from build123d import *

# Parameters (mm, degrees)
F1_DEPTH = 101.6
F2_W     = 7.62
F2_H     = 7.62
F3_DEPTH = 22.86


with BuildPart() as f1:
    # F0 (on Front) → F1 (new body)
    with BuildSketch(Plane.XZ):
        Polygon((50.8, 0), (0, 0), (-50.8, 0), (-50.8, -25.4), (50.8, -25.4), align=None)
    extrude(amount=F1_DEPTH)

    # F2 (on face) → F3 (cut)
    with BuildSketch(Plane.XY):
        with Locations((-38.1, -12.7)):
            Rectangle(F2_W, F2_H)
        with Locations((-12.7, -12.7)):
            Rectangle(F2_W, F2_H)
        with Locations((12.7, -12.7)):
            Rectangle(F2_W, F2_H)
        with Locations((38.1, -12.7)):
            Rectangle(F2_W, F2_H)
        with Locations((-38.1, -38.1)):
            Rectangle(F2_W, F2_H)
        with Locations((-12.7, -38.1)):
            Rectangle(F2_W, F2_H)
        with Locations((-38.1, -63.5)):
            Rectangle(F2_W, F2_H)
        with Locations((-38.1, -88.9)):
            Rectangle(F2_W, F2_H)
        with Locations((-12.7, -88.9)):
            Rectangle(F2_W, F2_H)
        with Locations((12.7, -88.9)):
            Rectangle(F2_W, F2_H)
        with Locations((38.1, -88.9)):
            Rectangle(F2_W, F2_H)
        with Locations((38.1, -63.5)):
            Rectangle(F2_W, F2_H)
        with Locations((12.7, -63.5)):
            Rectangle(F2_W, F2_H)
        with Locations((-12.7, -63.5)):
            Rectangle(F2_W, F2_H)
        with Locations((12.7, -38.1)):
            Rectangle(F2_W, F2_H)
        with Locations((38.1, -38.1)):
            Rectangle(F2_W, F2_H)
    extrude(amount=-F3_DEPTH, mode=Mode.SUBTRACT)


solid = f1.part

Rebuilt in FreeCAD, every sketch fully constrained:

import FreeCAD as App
import Part
import Sketcher

V = App.Vector
Q = App.Units.Quantity

doc = App.newDocument("Part")
body = doc.addObject("PartDesign::Body", "Body")

# Sketch on XZ plane
sketch1 = body.newObject("Sketcher::SketchObject", "Sketch")
sketch1.AttachmentSupport = (doc.getObject("XZ_Plane"), [""])
sketch1.MapMode = "FlatFace"
sketch1.addGeometry([
    Part.LineSegment(V(51, 0, 0), V(-51, 0, 0)),
    Part.LineSegment(V(-51, 0, 0), V(-51, -25, 0)),
    Part.LineSegment(V(-51, -25, 0), V(51, -25, 0)),
    Part.LineSegment(V(51, -25, 0), V(51, 0, 0)),
], False)
sketch1.addConstraint([
    Sketcher.Constraint("Coincident", 0, 2, 1, 1),
    Sketcher.Constraint("Coincident", 1, 2, 2, 1),
    Sketcher.Constraint("Coincident", 2, 2, 3, 1),
    Sketcher.Constraint("Coincident", 3, 2, 0, 1),
    Sketcher.Constraint("Horizontal", 0),
    Sketcher.Constraint("Vertical", 1),
    Sketcher.Constraint("Horizontal", 2),
    Sketcher.Constraint("Vertical", 3),
    Sketcher.Constraint("Symmetric", 0, 2, 3, 2, -1, 1),
    Sketcher.Constraint("DistanceX", 0, 2, 0, 1, Q("4 in")),
    Sketcher.Constraint("DistanceY", 1, 2, 1, 1, Q("1 in")),
])
pad1 = body.newObject("PartDesign::Pad", "Pad")
pad1.Profile = sketch1
pad1.Length = Q("4 in")

# Sketch on XY plane
sketch2 = body.newObject("Sketcher::SketchObject", "Sketch001")
sketch2.AttachmentSupport = (doc.getObject("XY_Plane"), [""])
sketch2.MapMode = "FlatFace"
sketch2.addGeometry([
    Part.LineSegment(V(-42, -9, 0), V(-42, -17, 0)),  # 0
    Part.LineSegment(V(-42, -17, 0), V(-34, -17, 0)),  # 1
    Part.LineSegment(V(-34, -17, 0), V(-34, -9, 0)),  # 2
    Part.LineSegment(V(-34, -9, 0), V(-42, -9, 0)),  # 3
    Part.LineSegment(V(-17, -9, 0), V(-17, -17, 0)),  # 4
    Part.LineSegment(V(-17, -17, 0), V(-9, -17, 0)),  # 5
    Part.LineSegment(V(-9, -17, 0), V(-9, -9, 0)),  # 6
    Part.LineSegment(V(-9, -9, 0), V(-17, -9, 0)),  # 7
    Part.LineSegment(V(9, -9, 0), V(9, -17, 0)),  # 8
    Part.LineSegment(V(9, -17, 0), V(17, -17, 0)),  # 9
    Part.LineSegment(V(17, -17, 0), V(17, -9, 0)),  # 10
    Part.LineSegment(V(17, -9, 0), V(9, -9, 0)),  # 11
    Part.LineSegment(V(34, -9, 0), V(34, -17, 0)),  # 12
    Part.LineSegment(V(34, -17, 0), V(42, -17, 0)),  # 13
    Part.LineSegment(V(42, -17, 0), V(42, -9, 0)),  # 14
    Part.LineSegment(V(42, -9, 0), V(34, -9, 0)),  # 15
    Part.LineSegment(V(-42, -34, 0), V(-42, -42, 0)),  # 16
    Part.LineSegment(V(-42, -42, 0), V(-34, -42, 0)),  # 17
    Part.LineSegment(V(-34, -42, 0), V(-34, -34, 0)),  # 18
    Part.LineSegment(V(-34, -34, 0), V(-42, -34, 0)),  # 19
    Part.LineSegment(V(-17, -34, 0), V(-17, -42, 0)),  # 20
    Part.LineSegment(V(-17, -42, 0), V(-9, -42, 0)),  # 21
    Part.LineSegment(V(-9, -42, 0), V(-9, -34, 0)),  # 22
    Part.LineSegment(V(-9, -34, 0), V(-17, -34, 0)),  # 23
    Part.LineSegment(V(-42, -60, 0), V(-42, -67, 0)),  # 24
    Part.LineSegment(V(-42, -67, 0), V(-34, -67, 0)),  # 25
    Part.LineSegment(V(-34, -67, 0), V(-34, -60, 0)),  # 26
    Part.LineSegment(V(-34, -60, 0), V(-42, -60, 0)),  # 27
    Part.LineSegment(V(-42, -85, 0), V(-42, -93, 0)),  # 28
    Part.LineSegment(V(-42, -93, 0), V(-34, -93, 0)),  # 29
    Part.LineSegment(V(-34, -93, 0), V(-34, -85, 0)),  # 30
    Part.LineSegment(V(-34, -85, 0), V(-42, -85, 0)),  # 31
    Part.LineSegment(V(-17, -85, 0), V(-17, -93, 0)),  # 32
    Part.LineSegment(V(-17, -93, 0), V(-9, -93, 0)),  # 33
    Part.LineSegment(V(-9, -93, 0), V(-9, -85, 0)),  # 34
    Part.LineSegment(V(-9, -85, 0), V(-17, -85, 0)),  # 35
    Part.LineSegment(V(9, -85, 0), V(9, -93, 0)),  # 36
    Part.LineSegment(V(9, -93, 0), V(17, -93, 0)),  # 37
    Part.LineSegment(V(17, -93, 0), V(17, -85, 0)),  # 38
    Part.LineSegment(V(17, -85, 0), V(9, -85, 0)),  # 39
    Part.LineSegment(V(34, -85, 0), V(34, -93, 0)),  # 40
    Part.LineSegment(V(34, -93, 0), V(42, -93, 0)),  # 41
    Part.LineSegment(V(42, -93, 0), V(42, -85, 0)),  # 42
    Part.LineSegment(V(42, -85, 0), V(34, -85, 0)),  # 43
    Part.LineSegment(V(34, -60, 0), V(34, -67, 0)),  # 44
    Part.LineSegment(V(34, -67, 0), V(42, -67, 0)),  # 45
    Part.LineSegment(V(42, -67, 0), V(42, -60, 0)),  # 46
    Part.LineSegment(V(42, -60, 0), V(34, -60, 0)),  # 47
    Part.LineSegment(V(9, -60, 0), V(9, -67, 0)),  # 48
    Part.LineSegment(V(9, -67, 0), V(17, -67, 0)),  # 49
    Part.LineSegment(V(17, -67, 0), V(17, -60, 0)),  # 50
    Part.LineSegment(V(17, -60, 0), V(9, -60, 0)),  # 51
    Part.LineSegment(V(-17, -60, 0), V(-17, -67, 0)),  # 52
    Part.LineSegment(V(-17, -67, 0), V(-9, -67, 0)),  # 53
    Part.LineSegment(V(-9, -67, 0), V(-9, -60, 0)),  # 54
    Part.LineSegment(V(-9, -60, 0), V(-17, -60, 0)),  # 55
    Part.LineSegment(V(9, -34, 0), V(9, -42, 0)),  # 56
    Part.LineSegment(V(9, -42, 0), V(17, -42, 0)),  # 57
    Part.LineSegment(V(17, -42, 0), V(17, -34, 0)),  # 58
    Part.LineSegment(V(17, -34, 0), V(9, -34, 0)),  # 59
    Part.LineSegment(V(34, -34, 0), V(34, -42, 0)),  # 60
    Part.LineSegment(V(34, -42, 0), V(42, -42, 0)),  # 61
    Part.LineSegment(V(42, -42, 0), V(42, -34, 0)),  # 62
    Part.LineSegment(V(42, -34, 0), V(34, -34, 0)),  # 63
], False)
sketch2.addConstraint([
    Sketcher.Constraint("Coincident", 0, 2, 1, 1),
    Sketcher.Constraint("Coincident", 1, 2, 2, 1),
    Sketcher.Constraint("Coincident", 2, 2, 3, 1),
    Sketcher.Constraint("Coincident", 3, 2, 0, 1),
    Sketcher.Constraint("Coincident", 4, 2, 5, 1),
    Sketcher.Constraint("Coincident", 5, 2, 6, 1),
    Sketcher.Constraint("Coincident", 6, 2, 7, 1),
    Sketcher.Constraint("Coincident", 7, 2, 4, 1),
    Sketcher.Constraint("Coincident", 8, 2, 9, 1),
    Sketcher.Constraint("Coincident", 9, 2, 10, 1),
    Sketcher.Constraint("Coincident", 10, 2, 11, 1),
    Sketcher.Constraint("Coincident", 11, 2, 8, 1),
    Sketcher.Constraint("Coincident", 12, 2, 13, 1),
    Sketcher.Constraint("Coincident", 13, 2, 14, 1),
    Sketcher.Constraint("Coincident", 14, 2, 15, 1),
    Sketcher.Constraint("Coincident", 15, 2, 12, 1),
    Sketcher.Constraint("Coincident", 16, 2, 17, 1),
    Sketcher.Constraint("Coincident", 17, 2, 18, 1),
    Sketcher.Constraint("Coincident", 18, 2, 19, 1),
    Sketcher.Constraint("Coincident", 19, 2, 16, 1),
    Sketcher.Constraint("Coincident", 20, 2, 21, 1),
    Sketcher.Constraint("Coincident", 21, 2, 22, 1),
    Sketcher.Constraint("Coincident", 22, 2, 23, 1),
    Sketcher.Constraint("Coincident", 23, 2, 20, 1),
    Sketcher.Constraint("Coincident", 24, 2, 25, 1),
    Sketcher.Constraint("Coincident", 25, 2, 26, 1),
    Sketcher.Constraint("Coincident", 26, 2, 27, 1),
    Sketcher.Constraint("Coincident", 27, 2, 24, 1),
    Sketcher.Constraint("Coincident", 28, 2, 29, 1),
    Sketcher.Constraint("Coincident", 29, 2, 30, 1),
    Sketcher.Constraint("Coincident", 30, 2, 31, 1),
    Sketcher.Constraint("Coincident", 31, 2, 28, 1),
    Sketcher.Constraint("Coincident", 32, 2, 33, 1),
    Sketcher.Constraint("Coincident", 33, 2, 34, 1),
    Sketcher.Constraint("Coincident", 34, 2, 35, 1),
    Sketcher.Constraint("Coincident", 35, 2, 32, 1),
    Sketcher.Constraint("Coincident", 36, 2, 37, 1),
    Sketcher.Constraint("Coincident", 37, 2, 38, 1),
    Sketcher.Constraint("Coincident", 38, 2, 39, 1),
    Sketcher.Constraint("Coincident", 39, 2, 36, 1),
    Sketcher.Constraint("Coincident", 40, 2, 41, 1),
    Sketcher.Constraint("Coincident", 41, 2, 42, 1),
    Sketcher.Constraint("Coincident", 42, 2, 43, 1),
    Sketcher.Constraint("Coincident", 43, 2, 40, 1),
    Sketcher.Constraint("Coincident", 44, 2, 45, 1),
    Sketcher.Constraint("Coincident", 45, 2, 46, 1),
    Sketcher.Constraint("Coincident", 46, 2, 47, 1),
    Sketcher.Constraint("Coincident", 47, 2, 44, 1),
    Sketcher.Constraint("Coincident", 48, 2, 49, 1),
    Sketcher.Constraint("Coincident", 49, 2, 50, 1),
    Sketcher.Constraint("Coincident", 50, 2, 51, 1),
    Sketcher.Constraint("Coincident", 51, 2, 48, 1),
    Sketcher.Constraint("Coincident", 52, 2, 53, 1),
    Sketcher.Constraint("Coincident", 53, 2, 54, 1),
    Sketcher.Constraint("Coincident", 54, 2, 55, 1),
    Sketcher.Constraint("Coincident", 55, 2, 52, 1),
    Sketcher.Constraint("Coincident", 56, 2, 57, 1),
    Sketcher.Constraint("Coincident", 57, 2, 58, 1),
    Sketcher.Constraint("Coincident", 58, 2, 59, 1),
    Sketcher.Constraint("Coincident", 59, 2, 56, 1),
    Sketcher.Constraint("Coincident", 60, 2, 61, 1),
    Sketcher.Constraint("Coincident", 61, 2, 62, 1),
    Sketcher.Constraint("Coincident", 62, 2, 63, 1),
    Sketcher.Constraint("Coincident", 63, 2, 60, 1),
    Sketcher.Constraint("Vertical", 0),
    Sketcher.Constraint("Horizontal", 1),
    Sketcher.Constraint("Vertical", 2),
    Sketcher.Constraint("Horizontal", 3),
    Sketcher.Constraint("Vertical", 4),
    Sketcher.Constraint("Horizontal", 5),
    Sketcher.Constraint("Vertical", 6),
    Sketcher.Constraint("Horizontal", 7),
    Sketcher.Constraint("Vertical", 8),
    Sketcher.Constraint("Horizontal", 9),
    Sketcher.Constraint("Vertical", 10),
    Sketcher.Constraint("Horizontal", 11),
    Sketcher.Constraint("Vertical", 12),
    Sketcher.Constraint("Horizontal", 13),
    Sketcher.Constraint("Vertical", 14),
    Sketcher.Constraint("Horizontal", 15),
    Sketcher.Constraint("Vertical", 16),
    Sketcher.Constraint("Horizontal", 17),
    Sketcher.Constraint("Vertical", 18),
    Sketcher.Constraint("Horizontal", 19),
    Sketcher.Constraint("Vertical", 20),
    Sketcher.Constraint("Horizontal", 21),
    Sketcher.Constraint("Vertical", 22),
    Sketcher.Constraint("Horizontal", 23),
    Sketcher.Constraint("Vertical", 24),
    Sketcher.Constraint("Horizontal", 25),
    Sketcher.Constraint("Vertical", 26),
    Sketcher.Constraint("Horizontal", 27),
    Sketcher.Constraint("Vertical", 28),
    Sketcher.Constraint("Horizontal", 29),
    Sketcher.Constraint("Vertical", 30),
    Sketcher.Constraint("Horizontal", 31),
    Sketcher.Constraint("Vertical", 32),
    Sketcher.Constraint("Horizontal", 33),
    Sketcher.Constraint("Vertical", 34),
    Sketcher.Constraint("Horizontal", 35),
    Sketcher.Constraint("Vertical", 36),
    Sketcher.Constraint("Horizontal", 37),
    Sketcher.Constraint("Vertical", 38),
    Sketcher.Constraint("Horizontal", 39),
    Sketcher.Constraint("Vertical", 40),
    Sketcher.Constraint("Horizontal", 41),
    Sketcher.Constraint("Vertical", 42),
    Sketcher.Constraint("Horizontal", 43),
    Sketcher.Constraint("Vertical", 44),
    Sketcher.Constraint("Horizontal", 45),
    Sketcher.Constraint("Vertical", 46),
    Sketcher.Constraint("Horizontal", 47),
    Sketcher.Constraint("Vertical", 48),
    Sketcher.Constraint("Horizontal", 49),
    Sketcher.Constraint("Vertical", 50),
    Sketcher.Constraint("Horizontal", 51),
    Sketcher.Constraint("Vertical", 52),
    Sketcher.Constraint("Horizontal", 53),
    Sketcher.Constraint("Vertical", 54),
    Sketcher.Constraint("Horizontal", 55),
    Sketcher.Constraint("Vertical", 56),
    Sketcher.Constraint("Horizontal", 57),
    Sketcher.Constraint("Vertical", 58),
    Sketcher.Constraint("Horizontal", 59),
    Sketcher.Constraint("Vertical", 60),
    Sketcher.Constraint("Horizontal", 61),
    Sketcher.Constraint("Vertical", 62),
    Sketcher.Constraint("Horizontal", 63),
    Sketcher.Constraint("Symmetric", 5, 2, 8, 2, -2),
    Sketcher.Constraint("Symmetric", 7, 2, 10, 2, -2),
    Sketcher.Constraint("Symmetric", 1, 2, 12, 2, -2),
    Sketcher.Constraint("Symmetric", 3, 2, 14, 2, -2),
    Sketcher.Constraint("Symmetric", 33, 2, 36, 2, -2),
    Sketcher.Constraint("Symmetric", 35, 2, 38, 2, -2),
    Sketcher.Constraint("Symmetric", 29, 2, 40, 2, -2),
    Sketcher.Constraint("Symmetric", 31, 2, 42, 2, -2),
    Sketcher.Constraint("Symmetric", 25, 2, 44, 2, -2),
    Sketcher.Constraint("Symmetric", 27, 2, 46, 2, -2),
    Sketcher.Constraint("Symmetric", 49, 2, 52, 2, -2),
    Sketcher.Constraint("Symmetric", 51, 2, 54, 2, -2),
    Sketcher.Constraint("Symmetric", 21, 2, 56, 2, -2),
    Sketcher.Constraint("Symmetric", 23, 2, 58, 2, -2),
    Sketcher.Constraint("Symmetric", 17, 2, 60, 2, -2),
    Sketcher.Constraint("Symmetric", 19, 2, 62, 2, -2),
    Sketcher.Constraint("Horizontal", 1, 2, 4, 2),
    Sketcher.Constraint("Horizontal", 3, 2, 6, 2),
    Sketcher.Constraint("Horizontal", 17, 2, 20, 2),
    Sketcher.Constraint("Horizontal", 19, 2, 22, 2),
    Sketcher.Constraint("Horizontal", 29, 2, 32, 2),
    Sketcher.Constraint("Horizontal", 31, 2, 34, 2),
    Sketcher.Constraint("Horizontal", 45, 2, 48, 2),
    Sketcher.Constraint("Horizontal", 47, 2, 50, 2),
    Sketcher.Constraint("Vertical", 3, 2, 16, 2),
    Sketcher.Constraint("Vertical", 2, 2, 17, 2),
    Sketcher.Constraint("Vertical", 7, 2, 20, 2),
    Sketcher.Constraint("Vertical", 6, 2, 21, 2),
    Sketcher.Constraint("Vertical", 19, 2, 24, 2),
    Sketcher.Constraint("Vertical", 18, 2, 25, 2),
    Sketcher.Constraint("Vertical", 27, 2, 28, 2),
    Sketcher.Constraint("Vertical", 26, 2, 29, 2),
    Sketcher.Constraint("Vertical", 23, 2, 32, 2),
    Sketcher.Constraint("Vertical", 22, 2, 33, 2),
    Sketcher.Constraint("Vertical", 39, 2, 48, 2),
    Sketcher.Constraint("Vertical", 38, 2, 49, 2),
    Sketcher.Constraint("Equal", 3, 5),
    Sketcher.Constraint("Equal", 63, 0),
    Sketcher.Constraint("Equal", 14, 16),
    Sketcher.Constraint("Equal", 22, 24),
    Sketcher.Constraint("Equal", 26, 28),
    Sketcher.Constraint("DistanceX", 1, 1, 1, 2, Q("0.3 in")),
    Sketcher.Constraint("DistanceX", 0, 2, -1, 1, Q("1.65 in")),
    Sketcher.Constraint("DistanceY", 0, 2, -1, 1, Q("0.65 in")),
    Sketcher.Constraint("DistanceX", 4, 2, -1, 1, Q("0.65 in")),
    Sketcher.Constraint("DistanceY", 16, 2, -1, 1, Q("1.65 in")),
    Sketcher.Constraint("DistanceY", 24, 2, -1, 1, Q("2.65 in")),
    Sketcher.Constraint("DistanceY", 28, 2, -1, 1, Q("3.65 in")),
])
pocket1 = body.newObject("PartDesign::Pocket", "Pocket")
pocket1.Profile = sketch2
pocket1.Length = Q("0.9 in")

doc.recompute()
